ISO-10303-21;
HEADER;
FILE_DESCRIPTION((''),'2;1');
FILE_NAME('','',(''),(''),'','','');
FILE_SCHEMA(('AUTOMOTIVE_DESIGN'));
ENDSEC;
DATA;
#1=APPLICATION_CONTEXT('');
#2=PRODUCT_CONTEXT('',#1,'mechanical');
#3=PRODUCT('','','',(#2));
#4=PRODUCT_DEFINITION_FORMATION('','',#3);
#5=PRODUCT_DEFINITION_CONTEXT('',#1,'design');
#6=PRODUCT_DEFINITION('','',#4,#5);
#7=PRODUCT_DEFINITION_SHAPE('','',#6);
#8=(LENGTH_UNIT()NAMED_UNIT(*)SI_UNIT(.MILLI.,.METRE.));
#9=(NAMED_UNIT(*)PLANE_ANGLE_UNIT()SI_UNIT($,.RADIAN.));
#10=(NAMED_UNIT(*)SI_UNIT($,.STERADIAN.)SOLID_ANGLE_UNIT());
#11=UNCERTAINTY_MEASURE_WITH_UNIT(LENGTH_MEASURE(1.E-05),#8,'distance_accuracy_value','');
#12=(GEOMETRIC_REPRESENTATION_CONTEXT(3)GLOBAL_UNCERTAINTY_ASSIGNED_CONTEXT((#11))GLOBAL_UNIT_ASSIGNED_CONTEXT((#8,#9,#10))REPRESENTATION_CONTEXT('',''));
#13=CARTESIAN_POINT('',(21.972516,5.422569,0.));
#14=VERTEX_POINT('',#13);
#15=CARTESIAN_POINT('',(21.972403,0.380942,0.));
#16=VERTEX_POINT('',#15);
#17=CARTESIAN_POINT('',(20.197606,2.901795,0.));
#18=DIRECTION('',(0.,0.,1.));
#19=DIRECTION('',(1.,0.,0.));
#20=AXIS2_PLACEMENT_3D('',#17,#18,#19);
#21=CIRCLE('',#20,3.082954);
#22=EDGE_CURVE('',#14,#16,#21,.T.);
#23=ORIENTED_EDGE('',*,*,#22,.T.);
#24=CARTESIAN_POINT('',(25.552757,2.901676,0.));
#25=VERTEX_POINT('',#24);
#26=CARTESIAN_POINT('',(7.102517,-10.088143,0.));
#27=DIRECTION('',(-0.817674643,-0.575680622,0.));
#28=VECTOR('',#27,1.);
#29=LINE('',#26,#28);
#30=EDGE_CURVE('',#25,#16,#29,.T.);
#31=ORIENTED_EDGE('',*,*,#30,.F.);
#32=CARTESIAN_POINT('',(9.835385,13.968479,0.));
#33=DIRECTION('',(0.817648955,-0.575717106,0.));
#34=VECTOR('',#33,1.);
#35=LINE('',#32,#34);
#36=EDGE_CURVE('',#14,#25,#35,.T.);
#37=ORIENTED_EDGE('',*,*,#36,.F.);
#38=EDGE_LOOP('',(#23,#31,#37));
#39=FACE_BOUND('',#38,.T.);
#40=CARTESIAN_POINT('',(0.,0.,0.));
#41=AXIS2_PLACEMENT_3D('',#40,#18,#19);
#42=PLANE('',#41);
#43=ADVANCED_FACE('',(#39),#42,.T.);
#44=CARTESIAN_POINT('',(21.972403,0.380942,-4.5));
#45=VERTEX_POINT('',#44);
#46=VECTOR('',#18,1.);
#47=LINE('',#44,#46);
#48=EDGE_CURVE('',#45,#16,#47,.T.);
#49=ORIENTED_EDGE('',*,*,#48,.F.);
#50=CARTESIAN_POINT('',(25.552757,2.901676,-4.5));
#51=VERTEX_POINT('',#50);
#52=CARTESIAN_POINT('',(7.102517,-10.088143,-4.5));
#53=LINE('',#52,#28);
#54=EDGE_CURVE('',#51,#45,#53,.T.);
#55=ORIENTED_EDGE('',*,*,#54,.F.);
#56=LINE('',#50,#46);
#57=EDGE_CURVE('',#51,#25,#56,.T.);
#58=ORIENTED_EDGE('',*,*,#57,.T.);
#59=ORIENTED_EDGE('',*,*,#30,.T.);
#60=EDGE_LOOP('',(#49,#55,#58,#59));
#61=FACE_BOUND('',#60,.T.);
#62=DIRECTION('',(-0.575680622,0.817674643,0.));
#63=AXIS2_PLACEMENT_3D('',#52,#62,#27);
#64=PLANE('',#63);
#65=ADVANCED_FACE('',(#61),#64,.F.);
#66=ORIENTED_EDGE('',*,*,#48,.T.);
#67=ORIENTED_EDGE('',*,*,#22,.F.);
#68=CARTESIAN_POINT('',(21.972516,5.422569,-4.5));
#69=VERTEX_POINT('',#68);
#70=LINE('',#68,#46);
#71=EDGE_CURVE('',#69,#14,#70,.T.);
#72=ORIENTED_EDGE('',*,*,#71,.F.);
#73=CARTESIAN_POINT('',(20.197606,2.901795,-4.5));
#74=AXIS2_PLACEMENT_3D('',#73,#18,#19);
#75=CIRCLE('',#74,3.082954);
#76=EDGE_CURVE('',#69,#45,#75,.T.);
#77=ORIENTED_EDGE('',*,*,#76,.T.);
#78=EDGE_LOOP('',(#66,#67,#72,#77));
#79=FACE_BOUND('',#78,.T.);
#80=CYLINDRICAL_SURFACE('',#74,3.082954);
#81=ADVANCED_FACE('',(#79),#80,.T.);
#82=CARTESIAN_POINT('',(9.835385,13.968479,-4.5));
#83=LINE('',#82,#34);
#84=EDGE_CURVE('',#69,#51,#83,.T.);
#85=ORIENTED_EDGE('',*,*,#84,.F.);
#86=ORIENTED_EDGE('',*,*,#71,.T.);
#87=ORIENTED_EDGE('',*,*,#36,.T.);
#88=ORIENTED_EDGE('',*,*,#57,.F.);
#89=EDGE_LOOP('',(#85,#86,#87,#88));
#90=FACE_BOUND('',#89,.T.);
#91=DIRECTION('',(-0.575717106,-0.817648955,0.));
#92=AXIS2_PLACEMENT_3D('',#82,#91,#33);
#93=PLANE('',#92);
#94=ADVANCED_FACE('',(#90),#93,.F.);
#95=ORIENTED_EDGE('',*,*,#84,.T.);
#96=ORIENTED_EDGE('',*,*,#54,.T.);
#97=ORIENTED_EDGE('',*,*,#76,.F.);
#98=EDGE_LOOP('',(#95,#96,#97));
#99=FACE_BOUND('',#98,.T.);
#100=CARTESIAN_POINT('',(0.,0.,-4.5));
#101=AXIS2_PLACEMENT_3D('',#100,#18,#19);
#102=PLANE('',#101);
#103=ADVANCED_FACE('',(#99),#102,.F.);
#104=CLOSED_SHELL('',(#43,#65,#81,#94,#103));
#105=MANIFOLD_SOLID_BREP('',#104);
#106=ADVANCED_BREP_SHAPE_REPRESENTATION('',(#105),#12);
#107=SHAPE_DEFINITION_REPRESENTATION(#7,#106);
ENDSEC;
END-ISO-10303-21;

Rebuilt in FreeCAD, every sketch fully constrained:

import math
import FreeCAD as App
import Part
import Sketcher

V = App.Vector

doc = App.newDocument("Part")
body = doc.addObject("PartDesign::Body", "Body")

# Sketch on XY plane
sketch1 = doc.addObject("Sketcher::SketchObject", "Sketch")
body.addObject(sketch1)
sketch1.AttachmentSupport = (doc.XY_Plane, [""])
sketch1.MapMode = "FlatFace"
sketch1.addGeometry([
    Part.LineSegment(V(22, 0.4, 0), V(25.6, 2.9, 0)),
    Part.LineSegment(V(25.6, 2.9, 0), V(22, 5.4, 0)),
    Part.ArcOfCircle(Part.Circle(V(20.2, 2.9, 0), V(0, 0, 1), 3.1), math.radians(55), math.radians(305)),
], False)
sketch1.addConstraint([
    Sketcher.Constraint("Coincident", 0, 2, 1, 1),
    Sketcher.Constraint("Tangent", 1, 2, 2, 1),
    Sketcher.Constraint("Tangent", 2, 2, 0, 1),
    Sketcher.Constraint("Radius", 2, 3.082954),
    Sketcher.Constraint("Distance", 0, 4.378702),
    Sketcher.Constraint("DistanceY", -1, 1, 1, 2, 5.422569),
    Sketcher.Constraint("DistanceY", 0, 2, 2, 3, 0.000119),
    Sketcher.Constraint("DistanceX", -1, 1, 2, 3, 20.197606),
])
pad1 = doc.addObject("PartDesign::Pad", "Pad")
body.addObject(pad1)
pad1.Profile = sketch1
pad1.Length = 4.5
pad1.Reversed = True

doc.recompute()
